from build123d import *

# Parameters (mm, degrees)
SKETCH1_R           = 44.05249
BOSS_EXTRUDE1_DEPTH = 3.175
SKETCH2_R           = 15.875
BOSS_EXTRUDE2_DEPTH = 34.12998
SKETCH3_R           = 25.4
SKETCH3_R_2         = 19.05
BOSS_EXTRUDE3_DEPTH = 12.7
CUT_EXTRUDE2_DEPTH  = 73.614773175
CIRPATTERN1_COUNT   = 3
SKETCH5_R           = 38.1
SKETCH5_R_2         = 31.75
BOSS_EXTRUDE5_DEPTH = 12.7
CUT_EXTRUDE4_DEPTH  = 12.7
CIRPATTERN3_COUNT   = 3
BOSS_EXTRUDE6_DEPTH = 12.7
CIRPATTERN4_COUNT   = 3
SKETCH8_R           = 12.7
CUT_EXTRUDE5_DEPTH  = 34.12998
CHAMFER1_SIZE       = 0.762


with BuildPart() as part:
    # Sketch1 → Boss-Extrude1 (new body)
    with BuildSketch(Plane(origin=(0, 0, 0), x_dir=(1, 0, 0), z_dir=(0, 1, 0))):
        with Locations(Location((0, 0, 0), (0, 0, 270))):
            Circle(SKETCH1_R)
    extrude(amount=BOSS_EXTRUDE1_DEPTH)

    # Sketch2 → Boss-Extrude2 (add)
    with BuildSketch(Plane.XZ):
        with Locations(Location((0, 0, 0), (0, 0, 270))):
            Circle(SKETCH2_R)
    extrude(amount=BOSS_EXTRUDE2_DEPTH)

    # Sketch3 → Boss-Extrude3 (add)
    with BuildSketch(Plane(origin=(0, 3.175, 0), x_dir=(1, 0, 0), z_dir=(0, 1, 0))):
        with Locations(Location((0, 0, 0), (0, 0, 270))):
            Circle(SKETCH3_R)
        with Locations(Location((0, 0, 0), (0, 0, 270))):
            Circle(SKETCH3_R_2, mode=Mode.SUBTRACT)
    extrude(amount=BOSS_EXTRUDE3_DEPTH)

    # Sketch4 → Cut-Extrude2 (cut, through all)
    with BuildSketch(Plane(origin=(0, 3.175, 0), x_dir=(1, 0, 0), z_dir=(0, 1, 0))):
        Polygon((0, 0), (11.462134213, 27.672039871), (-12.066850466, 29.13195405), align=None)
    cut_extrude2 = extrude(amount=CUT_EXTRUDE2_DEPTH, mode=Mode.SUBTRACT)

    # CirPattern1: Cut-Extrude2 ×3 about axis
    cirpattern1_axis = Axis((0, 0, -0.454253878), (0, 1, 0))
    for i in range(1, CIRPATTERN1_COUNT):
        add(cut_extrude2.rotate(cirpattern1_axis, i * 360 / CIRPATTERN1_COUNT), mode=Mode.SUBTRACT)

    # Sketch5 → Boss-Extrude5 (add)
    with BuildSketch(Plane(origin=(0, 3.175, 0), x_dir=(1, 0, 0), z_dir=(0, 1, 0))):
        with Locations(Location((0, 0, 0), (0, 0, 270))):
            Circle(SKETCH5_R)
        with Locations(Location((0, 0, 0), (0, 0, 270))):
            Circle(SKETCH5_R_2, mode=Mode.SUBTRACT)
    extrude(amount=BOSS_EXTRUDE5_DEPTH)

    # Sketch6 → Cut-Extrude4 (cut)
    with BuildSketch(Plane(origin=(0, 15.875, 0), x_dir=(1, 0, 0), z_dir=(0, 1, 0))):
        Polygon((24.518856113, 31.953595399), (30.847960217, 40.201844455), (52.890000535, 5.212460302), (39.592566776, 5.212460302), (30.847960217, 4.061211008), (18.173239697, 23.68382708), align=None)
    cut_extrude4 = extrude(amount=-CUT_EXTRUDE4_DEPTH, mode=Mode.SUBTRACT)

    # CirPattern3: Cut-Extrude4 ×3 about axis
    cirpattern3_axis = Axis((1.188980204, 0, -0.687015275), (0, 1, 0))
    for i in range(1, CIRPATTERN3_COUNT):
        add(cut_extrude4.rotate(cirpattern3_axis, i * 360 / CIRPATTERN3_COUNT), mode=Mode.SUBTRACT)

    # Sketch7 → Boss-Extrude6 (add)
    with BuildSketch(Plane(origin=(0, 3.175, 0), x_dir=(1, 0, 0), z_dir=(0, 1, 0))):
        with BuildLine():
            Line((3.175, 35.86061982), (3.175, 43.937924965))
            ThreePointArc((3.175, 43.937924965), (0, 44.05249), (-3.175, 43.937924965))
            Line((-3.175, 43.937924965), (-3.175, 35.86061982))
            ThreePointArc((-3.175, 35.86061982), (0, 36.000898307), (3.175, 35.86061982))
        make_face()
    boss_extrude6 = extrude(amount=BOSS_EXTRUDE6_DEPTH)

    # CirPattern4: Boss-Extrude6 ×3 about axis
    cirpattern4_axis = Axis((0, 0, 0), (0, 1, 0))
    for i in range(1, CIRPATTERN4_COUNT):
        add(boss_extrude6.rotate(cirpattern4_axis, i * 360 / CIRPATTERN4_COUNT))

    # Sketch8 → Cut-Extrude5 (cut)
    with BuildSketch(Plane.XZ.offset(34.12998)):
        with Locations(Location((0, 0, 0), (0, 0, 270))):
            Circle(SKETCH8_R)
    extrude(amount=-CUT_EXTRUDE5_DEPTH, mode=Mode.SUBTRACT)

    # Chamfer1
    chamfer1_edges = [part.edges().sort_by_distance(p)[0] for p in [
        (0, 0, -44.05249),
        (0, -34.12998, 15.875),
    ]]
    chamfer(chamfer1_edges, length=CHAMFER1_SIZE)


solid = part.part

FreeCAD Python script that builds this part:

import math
import FreeCAD as App
import Part
import Sketcher

V = App.Vector
Q = App.Units.Quantity


def edges_at(feature, points):
    """Names of the edges that pass closest to the given points."""
    edges = feature.Shape.Edges
    near = lambda p: min(range(len(edges)), key=lambda i: edges[i].distToShape(Part.Vertex(*p))[0])
    return sorted({f"Edge{near(p) + 1}" for p in points})


def add_polygon(sketch, points):
    """Adds a closed chain of lines whose ends are joined by coincident constraints."""
    first, n = sketch.GeometryCount, len(points)
    for a, b in zip(points, points[1:] + points[:1]):
        sketch.addGeometry(Part.LineSegment(App.Vector(*a, 0), App.Vector(*b, 0)), False)
    for i in range(n):
        sketch.addConstraint(Sketcher.Constraint("Coincident", first + i, 2, first + (i + 1) % n, 1))

doc = App.newDocument("Part")
body = doc.addObject("PartDesign::Body", "Body")

sketch1 = doc.addObject("Sketcher::SketchObject", "Sketch")
body.addObject(sketch1)
sketch1.AttachmentSupport = (doc.XZ_Plane, [""])
sketch1.MapMode = "FlatFace"
sketch1.addGeometry(Part.Circle(V(0, 0, 0), V(0, 0, 1), 44), False)
sketch1.addConstraint([
    Sketcher.Constraint("Coincident", 0, 3, -1, 1),
    Sketcher.Constraint("Diameter", 0, Q("3.4687 in")),
])
pad1 = doc.addObject("PartDesign::Pad", "Pad")
body.addObject(pad1)
pad1.Profile = sketch1
pad1.Length = Q("0.125 in")
pad1.Reversed = True

sketch2 = doc.addObject("Sketcher::SketchObject", "Sketch001")
body.addObject(sketch2)
sketch2.AttachmentSupport = (doc.XZ_Plane, [""])
sketch2.MapMode = "FlatFace"
sketch2.addGeometry(Part.Circle(V(0, 0, 0), V(0, 0, 1), 16), False)
sketch2.addConstraint([
    Sketcher.Constraint("Coincident", 0, 3, -1, 1),
    Sketcher.Constraint("Diameter", 0, Q("1.25 in")),
])
pad2 = doc.addObject("PartDesign::Pad", "Pad001")
body.addObject(pad2)
pad2.Profile = sketch2
pad2.Length = Q("1.3437 in")

sketch3 = doc.addObject("Sketcher::SketchObject", "Sketch002")
body.addObject(sketch3)
sketch3.AttachmentSupport = (doc.XZ_Plane, [""])
sketch3.MapMode = "FlatFace"
sketch3.AttachmentOffset = App.Placement(V(0, 0, -0.125 * 25.4), App.Rotation())
sketch3.addGeometry([
    Part.Circle(V(0, 0, 0), V(0, 0, 1), 25),
    Part.Circle(V(0, 0, 0), V(0, 0, 1), 19),
], False)
sketch3.addConstraint([
    Sketcher.Constraint("Coincident", 0, 3, -1, 1),
    Sketcher.Constraint("Coincident", 1, 3, -1, 1),
    Sketcher.Constraint("Diameter", 0, Q("2 in")),
    Sketcher.Constraint("Diameter", 1, Q("1.5 in")),
])
pad3 = doc.addObject("PartDesign::Pad", "Pad002")
body.addObject(pad3)
pad3.Profile = sketch3
pad3.Length = Q("0.5 in")
pad3.Reversed = True

sketch4 = doc.addObject("Sketcher::SketchObject", "Sketch003")
body.addObject(sketch4)
sketch4.AttachmentSupport = (doc.XZ_Plane, [""])
sketch4.MapMode = "FlatFace"
sketch4.AttachmentOffset = App.Placement(V(0, 0, -0.125 * 25.4), App.Rotation())
add_polygon(sketch4, [(0, 0), (11, -28), (-12, -29)])
sketch4.addConstraint([
    Sketcher.Constraint("Coincident", 2, 2, -1, 1),
    Sketcher.Constraint("Angle", 0, Q("-67.5 deg")),
    Sketcher.Constraint("Angle", 2, Q("67.5 deg")),
    Sketcher.Constraint("Distance", 0, 29.952),
    Sketcher.Constraint("Distance", 2, 31.5322),
])
pocket1 = doc.addObject("PartDesign::Pocket", "Pocket")
body.addObject(pocket1)
pocket1.Profile = sketch4
pocket1.Type = "ThroughAll"
doc.recompute()

datumline = doc.addObject("PartDesign::Line", "DatumLine")
body.addObject(datumline)
datumline.Placement = App.Placement(V(0, 0, -0.454254), App.Rotation(V(0, 0, 1), V(0, 1, 0)))
polarpattern = doc.addObject("PartDesign::PolarPattern", "PolarPattern")
body.addObject(polarpattern)
polarpattern.Originals = [pocket1]
polarpattern.Axis = (datumline, [""])
polarpattern.Angle = 360
polarpattern.Occurrences = 3
body.Tip = polarpattern

sketch5 = doc.addObject("Sketcher::SketchObject", "Sketch004")
body.addObject(sketch5)
sketch5.AttachmentSupport = (doc.XZ_Plane, [""])
sketch5.MapMode = "FlatFace"
sketch5.AttachmentOffset = App.Placement(V(0, 0, -0.125 * 25.4), App.Rotation())
sketch5.addGeometry([
    Part.Circle(V(0, 0, 0), V(0, 0, 1), 38),
    Part.Circle(V(0, 0, 0), V(0, 0, 1), 32),
], False)
sketch5.addConstraint([
    Sketcher.Constraint("Coincident", 0, 3, -1, 1),
    Sketcher.Constraint("Coincident", 1, 3, -1, 1),
    Sketcher.Constraint("Diameter", 0, Q("3 in")),
    Sketcher.Constraint("Diameter", 1, Q("2.5 in")),
])
pad4 = doc.addObject("PartDesign::Pad", "Pad003")
body.addObject(pad4)
pad4.Profile = sketch5
pad4.Length = Q("0.5 in")
pad4.Reversed = True

sketch6 = doc.addObject("Sketcher::SketchObject", "Sketch005")
body.addObject(sketch6)
sketch6.AttachmentSupport = (doc.XZ_Plane, [""])
sketch6.MapMode = "FlatFace"
sketch6.AttachmentOffset = App.Placement(V(0, 0, -0.625 * 25.4), App.Rotation())
add_polygon(sketch6, [(31, -40), (25, -32), (18, -24), (31, -4), (40, -5), (53, -5)])
sketch6.addConstraint([
    Sketcher.Constraint("Horizontal", 4),
    Sketcher.Constraint("Parallel", 0, 1),
    Sketcher.Constraint("Vertical", 2, 2, 5, 2),
    Sketcher.Constraint("Angle", 0, Q("127.5 deg")),
    Sketcher.Constraint("Angle", 3, Q("-7.5 deg")),
    Sketcher.Constraint("DistanceX", -1, 1, 4, 2, 52.890001),
    Sketcher.Constraint("Distance", 0, 10.39669),
    Sketcher.Constraint("Distance", 2, 23.360128),
    Sketcher.Constraint("Distance", 5, 41.353459),
    Sketcher.Constraint("DistanceX", 4, 1, 4, 2, 13.297434),
    Sketcher.Constraint("DistanceX", -1, 1, 1, 2, 18.17324),
    Sketcher.Constraint("DistanceY", 2, 2, -1, 1, 4.061211),
])
pocket2 = doc.addObject("PartDesign::Pocket", "Pocket001")
body.addObject(pocket2)
pocket2.Profile = sketch6
pocket2.Length = Q("0.5 in")
pocket2.Reversed = True
doc.recompute()

datumline2 = doc.addObject("PartDesign::Line", "DatumLine001")
body.addObject(datumline2)
datumline2.Placement = App.Placement(V(1.18898, 0, -0.687015), App.Rotation(V(0, 0, 1), V(0, 1, 0)))
polarpattern2 = doc.addObject("PartDesign::PolarPattern", "PolarPattern001")
body.addObject(polarpattern2)
polarpattern2.Originals = [pocket2]
polarpattern2.Axis = (datumline2, [""])
polarpattern2.Angle = 360
polarpattern2.Occurrences = 3
body.Tip = polarpattern2

sketch7 = doc.addObject("Sketcher::SketchObject", "Sketch006")
body.addObject(sketch7)
sketch7.AttachmentSupport = (doc.XZ_Plane, [""])
sketch7.MapMode = "FlatFace"
sketch7.AttachmentOffset = App.Placement(V(0, 0, -0.125 * 25.4), App.Rotation())
sketch7.addGeometry([
    Part.LineSegment(V(3, -36, 0), V(3, -44, 0)),
    Part.ArcOfCircle(Part.Circle(V(0, 0, 0), V(0, 0, 1), 44), math.radians(-94.13), math.radians(-85.87)),
    Part.LineSegment(V(-3, -44, 0), V(-3, -36, 0)),
    Part.ArcOfCircle(Part.Circle(V(0, 0, 0), V(0, 0, 1), 36), math.radians(-95.06), math.radians(-84.94)),
], False)
sketch7.addConstraint([
    Sketcher.Constraint("Coincident", 0, 2, 1, 2),
    Sketcher.Constraint("Coincident", 1, 1, 2, 1),
    Sketcher.Constraint("Coincident", 2, 2, 3, 1),
    Sketcher.Constraint("Coincident", 3, 2, 0, 1),
    Sketcher.Constraint("Vertical", 0),
    Sketcher.Constraint("Vertical", 2),
    Sketcher.Constraint("Coincident", 1, 3, -1, 1),
    Sketcher.Constraint("Coincident", 3, 3, -1, 1),
    Sketcher.Constraint("Horizontal", 0, 2, 1, 1),
    Sketcher.Constraint("Radius", 3, 36.000898),
    Sketcher.Constraint("DistanceX", 1, 1, 0, 2, Q("0.25 in")),
    Sketcher.Constraint("Radius", 1, 44.05249),
])
pad5 = doc.addObject("PartDesign::Pad", "Pad004")
body.addObject(pad5)
pad5.Profile = sketch7
pad5.Length = Q("0.5 in")
pad5.Reversed = True
doc.recompute()

polarpattern3 = doc.addObject("PartDesign::PolarPattern", "PolarPattern002")
body.addObject(polarpattern3)
polarpattern3.Originals = [pad5]
polarpattern3.Axis = (doc.Y_Axis, [""])
polarpattern3.Angle = 360
polarpattern3.Occurrences = 3
body.Tip = polarpattern3

sketch8 = doc.addObject("Sketcher::SketchObject", "Sketch007")
body.addObject(sketch8)
sketch8.AttachmentSupport = (doc.XZ_Plane, [""])
sketch8.MapMode = "FlatFace"
sketch8.AttachmentOffset = App.Placement(V(0, 0, 1.3437 * 25.4), App.Rotation())
sketch8.addGeometry(Part.Circle(V(0, 0, 0), V(0, 0, 1), 13), False)
sketch8.addConstraint([
    Sketcher.Constraint("Coincident", 0, 3, -1, 1),
    Sketcher.Constraint("Diameter", 0, Q("1 in")),
])
pocket3 = doc.addObject("PartDesign::Pocket", "Pocket002")
body.addObject(pocket3)
pocket3.Profile = sketch8
pocket3.Length = Q("1.3437 in")
doc.recompute()

chamfer = doc.addObject("PartDesign::Chamfer", "Chamfer")
body.addObject(chamfer)
chamfer.Base = (pocket3, edges_at(pocket3, [(0, 0, -44.052), (0, -34.13, 15.875)]))
chamfer.Size = Q("0.03 in")

doc.recompute()
